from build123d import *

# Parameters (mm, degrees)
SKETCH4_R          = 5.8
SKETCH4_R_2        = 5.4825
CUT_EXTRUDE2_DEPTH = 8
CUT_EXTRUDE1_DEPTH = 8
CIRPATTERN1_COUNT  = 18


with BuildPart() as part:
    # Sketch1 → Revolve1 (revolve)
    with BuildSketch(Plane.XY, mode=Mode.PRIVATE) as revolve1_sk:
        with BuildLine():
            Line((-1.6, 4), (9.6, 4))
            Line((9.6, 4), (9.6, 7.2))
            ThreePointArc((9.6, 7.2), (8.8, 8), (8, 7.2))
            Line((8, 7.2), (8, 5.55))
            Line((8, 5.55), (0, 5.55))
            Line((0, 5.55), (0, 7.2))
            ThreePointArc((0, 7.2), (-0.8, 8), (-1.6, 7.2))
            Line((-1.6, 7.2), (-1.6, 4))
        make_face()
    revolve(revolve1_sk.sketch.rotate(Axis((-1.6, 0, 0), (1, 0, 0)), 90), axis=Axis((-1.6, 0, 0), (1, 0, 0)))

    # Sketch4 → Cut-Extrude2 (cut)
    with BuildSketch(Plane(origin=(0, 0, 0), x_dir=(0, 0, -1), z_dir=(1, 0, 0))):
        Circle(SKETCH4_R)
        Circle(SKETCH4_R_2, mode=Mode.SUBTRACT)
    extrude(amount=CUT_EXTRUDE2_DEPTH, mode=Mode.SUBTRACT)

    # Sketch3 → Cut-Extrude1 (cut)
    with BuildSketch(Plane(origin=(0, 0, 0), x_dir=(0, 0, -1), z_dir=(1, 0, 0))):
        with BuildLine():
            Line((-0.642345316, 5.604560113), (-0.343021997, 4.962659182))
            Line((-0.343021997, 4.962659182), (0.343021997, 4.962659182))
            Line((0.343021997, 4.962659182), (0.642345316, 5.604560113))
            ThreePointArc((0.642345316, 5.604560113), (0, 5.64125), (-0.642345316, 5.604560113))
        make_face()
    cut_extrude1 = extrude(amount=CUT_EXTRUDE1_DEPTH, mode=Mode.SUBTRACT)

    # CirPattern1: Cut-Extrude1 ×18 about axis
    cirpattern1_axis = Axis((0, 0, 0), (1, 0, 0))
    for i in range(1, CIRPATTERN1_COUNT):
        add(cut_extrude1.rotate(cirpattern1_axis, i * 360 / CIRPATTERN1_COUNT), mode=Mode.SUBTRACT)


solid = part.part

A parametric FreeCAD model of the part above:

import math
import FreeCAD as App
import Part
import Sketcher
from FreeCAD import Vector
Q = App.Units.Quantity

doc = App.newDocument("Part")
params = doc.addObject("Spreadsheet::Sheet", "Params")
for row, (alias, value) in enumerate([
    ("sketch1_radius", "0.8 mm"),
    ("sketch1_width", "8 mm"),
    ("sketch1_height", "3.2 mm"),
    ("sketch1_height2", "1.65 mm"),
    ("revolution_angle", "360 deg"),
    ("sketch2_diameter", "11.6 mm"),
    ("pocket1_length", "8 mm"),
    ("pocket2_length", "8 mm"),
], start=1):
    params.set(f"A{row}", alias)
    params.set(f"B{row}", "=" + value)
    params.setAlias(f"B{row}", alias)

body = doc.addObject("PartDesign::Body", "Body")

sketch1 = doc.addObject("Sketcher::SketchObject", "Sketch")
body.addObject(sketch1)
sketch1.AttachmentSupport = (doc.XY_Plane, [""])
sketch1.MapMode = "FlatFace"
sketch1.addGeometry([
    Part.LineSegment(Vector(-1.6, 4, 0), Vector(9.6, 4, 0)),
    Part.LineSegment(Vector(9.6, 4, 0), Vector(9.6, 7.2, 0)),
    Part.ArcOfCircle(Part.Circle(Vector(8.8, 7.2, 0), Vector(0, 0, 1), 0.8), math.radians(0), math.radians(180)),
    Part.LineSegment(Vector(8, 7.2, 0), Vector(8, 5.55, 0)),
    Part.LineSegment(Vector(8, 5.55, 0), Vector(0, 5.55, 0)),
    Part.LineSegment(Vector(0, 5.55, 0), Vector(0, 7.2, 0)),
    Part.ArcOfCircle(Part.Circle(Vector(-0.8, 7.2, 0), Vector(0, 0, 1), 0.8), math.radians(0), math.radians(180)),
    Part.LineSegment(Vector(-1.6, 7.2, 0), Vector(-1.6, 4, 0)),
], False)
sketch1.addConstraint([
    Sketcher.Constraint("Coincident", 0, 2, 1, 1),
    Sketcher.Constraint("Tangent", 1, 2, 2, 1),
    Sketcher.Constraint("Tangent", 2, 2, 3, 1),
    Sketcher.Constraint("Coincident", 3, 2, 4, 1),
    Sketcher.Constraint("Coincident", 4, 2, 5, 1),
    Sketcher.Constraint("Tangent", 5, 2, 6, 1),
    Sketcher.Constraint("Tangent", 6, 2, 7, 1),
    Sketcher.Constraint("Coincident", 7, 2, 0, 1),
    Sketcher.Constraint("Horizontal", 0),
    Sketcher.Constraint("Vertical", 1),
    Sketcher.Constraint("Vertical", 3),
    Sketcher.Constraint("Horizontal", 4),
    Sketcher.Constraint("Vertical", 5),
    Sketcher.Constraint("Vertical", 7),
    Sketcher.Constraint("Equal", 2, 6),
    Sketcher.Constraint("PointOnObject", 4, 2, -2),
    Sketcher.Constraint("Horizontal", 2, 3, 6, 3),
    Sketcher.Constraint("Radius", 2, 0.8),
    Sketcher.Constraint("DistanceX", 4, 2, 4, 1, 8.0),
    Sketcher.Constraint("DistanceY", 1, 1, 1, 2, 3.2),
    Sketcher.Constraint("DistanceY", -1, 1, 0, 2, 4.0),
    Sketcher.Constraint("DistanceY", 3, 2, 3, 1, 1.65),
])
sketch1.setExpression("Constraints[17]", "Params.sketch1_radius")
sketch1.setExpression("Constraints[18]", "Params.sketch1_width")
sketch1.setExpression("Constraints[19]", "Params.sketch1_height")
sketch1.setExpression("Constraints[21]", "Params.sketch1_height2")
revolution = doc.addObject("PartDesign::Revolution", "Revolution")
body.addObject(revolution)
revolution.Profile = sketch1
revolution.ReferenceAxis = (sketch1, ["H_Axis"])
revolution.setExpression("Angle", "Params.revolution_angle")

sketch2 = doc.addObject("Sketcher::SketchObject", "Sketch001")
body.addObject(sketch2)
sketch2.AttachmentSupport = (doc.YZ_Plane, [""])
sketch2.MapMode = "FlatFace"
sketch2.addGeometry([
    Part.Circle(Vector(0, 0, 0), Vector(0, 0, 1), 5.8),
    Part.Circle(Vector(0, 0, 0), Vector(0, 0, 1), 5.4825),
], False)
sketch2.addConstraint([
    Sketcher.Constraint("Coincident", 0, 3, -1, 1),
    Sketcher.Constraint("Coincident", 1, 3, -1, 1),
    Sketcher.Constraint("Diameter", 0, 11.6),
    Sketcher.Constraint("Diameter", 1, 10.965),
])
sketch2.setExpression("Constraints[2]", "Params.sketch2_diameter")
pocket1 = doc.addObject("PartDesign::Pocket", "Pocket")
body.addObject(pocket1)
pocket1.Profile = sketch2
pocket1.setExpression("Length", "Params.pocket1_length")
pocket1.Reversed = True

sketch3 = doc.addObject("Sketcher::SketchObject", "Sketch002")
body.addObject(sketch3)
sketch3.AttachmentSupport = (doc.YZ_Plane, [""])
sketch3.MapMode = "FlatFace"
sketch3.addGeometry([
    Part.LineSegment(Vector(5.60456, 0.642345, 0), Vector(4.962659, 0.343022, 0)),
    Part.LineSegment(Vector(4.962659, 0.343022, 0), Vector(4.962659, -0.343022, 0)),
    Part.LineSegment(Vector(4.962659, -0.343022, 0), Vector(5.60456, -0.642345, 0)),
    Part.ArcOfCircle(Part.Circle(Vector(0, 0, 0), Vector(0, 0, 1), 5.64125), math.radians(-6.538209), math.radians(6.538209)),
], False)
sketch3.addConstraint([
    Sketcher.Constraint("Coincident", 0, 2, 1, 1),
    Sketcher.Constraint("Coincident", 1, 2, 2, 1),
    Sketcher.Constraint("Coincident", 2, 2, 3, 1),
    Sketcher.Constraint("Coincident", 3, 2, 0, 1),
    Sketcher.Constraint("Vertical", 1),
    Sketcher.Constraint("Coincident", 3, 3, -1, 1),
    Sketcher.Constraint("Vertical", 2, 2, 3, 2),
    Sketcher.Constraint("Equal", 0, 2),
    Sketcher.Constraint("Angle", 0, Q("-155 deg")),
    Sketcher.Constraint("Radius", 3, 5.64125),
    Sketcher.Constraint("DistanceX", 1, 2, 2, 2, 0.641901),
    Sketcher.Constraint("DistanceY", 1, 2, 1, 1, 0.686044),
])
pocket2 = doc.addObject("PartDesign::Pocket", "Pocket001")
body.addObject(pocket2)
pocket2.Profile = sketch3
pocket2.setExpression("Length", "Params.pocket2_length")
pocket2.Reversed = True
doc.recompute()

polarpattern = doc.addObject("PartDesign::PolarPattern", "PolarPattern")
body.addObject(polarpattern)
polarpattern.Originals = [pocket2]
polarpattern.Axis = (doc.X_Axis, [""])
polarpattern.Angle = 360
polarpattern.Occurrences = 18
body.Tip = polarpattern

doc.recompute()
